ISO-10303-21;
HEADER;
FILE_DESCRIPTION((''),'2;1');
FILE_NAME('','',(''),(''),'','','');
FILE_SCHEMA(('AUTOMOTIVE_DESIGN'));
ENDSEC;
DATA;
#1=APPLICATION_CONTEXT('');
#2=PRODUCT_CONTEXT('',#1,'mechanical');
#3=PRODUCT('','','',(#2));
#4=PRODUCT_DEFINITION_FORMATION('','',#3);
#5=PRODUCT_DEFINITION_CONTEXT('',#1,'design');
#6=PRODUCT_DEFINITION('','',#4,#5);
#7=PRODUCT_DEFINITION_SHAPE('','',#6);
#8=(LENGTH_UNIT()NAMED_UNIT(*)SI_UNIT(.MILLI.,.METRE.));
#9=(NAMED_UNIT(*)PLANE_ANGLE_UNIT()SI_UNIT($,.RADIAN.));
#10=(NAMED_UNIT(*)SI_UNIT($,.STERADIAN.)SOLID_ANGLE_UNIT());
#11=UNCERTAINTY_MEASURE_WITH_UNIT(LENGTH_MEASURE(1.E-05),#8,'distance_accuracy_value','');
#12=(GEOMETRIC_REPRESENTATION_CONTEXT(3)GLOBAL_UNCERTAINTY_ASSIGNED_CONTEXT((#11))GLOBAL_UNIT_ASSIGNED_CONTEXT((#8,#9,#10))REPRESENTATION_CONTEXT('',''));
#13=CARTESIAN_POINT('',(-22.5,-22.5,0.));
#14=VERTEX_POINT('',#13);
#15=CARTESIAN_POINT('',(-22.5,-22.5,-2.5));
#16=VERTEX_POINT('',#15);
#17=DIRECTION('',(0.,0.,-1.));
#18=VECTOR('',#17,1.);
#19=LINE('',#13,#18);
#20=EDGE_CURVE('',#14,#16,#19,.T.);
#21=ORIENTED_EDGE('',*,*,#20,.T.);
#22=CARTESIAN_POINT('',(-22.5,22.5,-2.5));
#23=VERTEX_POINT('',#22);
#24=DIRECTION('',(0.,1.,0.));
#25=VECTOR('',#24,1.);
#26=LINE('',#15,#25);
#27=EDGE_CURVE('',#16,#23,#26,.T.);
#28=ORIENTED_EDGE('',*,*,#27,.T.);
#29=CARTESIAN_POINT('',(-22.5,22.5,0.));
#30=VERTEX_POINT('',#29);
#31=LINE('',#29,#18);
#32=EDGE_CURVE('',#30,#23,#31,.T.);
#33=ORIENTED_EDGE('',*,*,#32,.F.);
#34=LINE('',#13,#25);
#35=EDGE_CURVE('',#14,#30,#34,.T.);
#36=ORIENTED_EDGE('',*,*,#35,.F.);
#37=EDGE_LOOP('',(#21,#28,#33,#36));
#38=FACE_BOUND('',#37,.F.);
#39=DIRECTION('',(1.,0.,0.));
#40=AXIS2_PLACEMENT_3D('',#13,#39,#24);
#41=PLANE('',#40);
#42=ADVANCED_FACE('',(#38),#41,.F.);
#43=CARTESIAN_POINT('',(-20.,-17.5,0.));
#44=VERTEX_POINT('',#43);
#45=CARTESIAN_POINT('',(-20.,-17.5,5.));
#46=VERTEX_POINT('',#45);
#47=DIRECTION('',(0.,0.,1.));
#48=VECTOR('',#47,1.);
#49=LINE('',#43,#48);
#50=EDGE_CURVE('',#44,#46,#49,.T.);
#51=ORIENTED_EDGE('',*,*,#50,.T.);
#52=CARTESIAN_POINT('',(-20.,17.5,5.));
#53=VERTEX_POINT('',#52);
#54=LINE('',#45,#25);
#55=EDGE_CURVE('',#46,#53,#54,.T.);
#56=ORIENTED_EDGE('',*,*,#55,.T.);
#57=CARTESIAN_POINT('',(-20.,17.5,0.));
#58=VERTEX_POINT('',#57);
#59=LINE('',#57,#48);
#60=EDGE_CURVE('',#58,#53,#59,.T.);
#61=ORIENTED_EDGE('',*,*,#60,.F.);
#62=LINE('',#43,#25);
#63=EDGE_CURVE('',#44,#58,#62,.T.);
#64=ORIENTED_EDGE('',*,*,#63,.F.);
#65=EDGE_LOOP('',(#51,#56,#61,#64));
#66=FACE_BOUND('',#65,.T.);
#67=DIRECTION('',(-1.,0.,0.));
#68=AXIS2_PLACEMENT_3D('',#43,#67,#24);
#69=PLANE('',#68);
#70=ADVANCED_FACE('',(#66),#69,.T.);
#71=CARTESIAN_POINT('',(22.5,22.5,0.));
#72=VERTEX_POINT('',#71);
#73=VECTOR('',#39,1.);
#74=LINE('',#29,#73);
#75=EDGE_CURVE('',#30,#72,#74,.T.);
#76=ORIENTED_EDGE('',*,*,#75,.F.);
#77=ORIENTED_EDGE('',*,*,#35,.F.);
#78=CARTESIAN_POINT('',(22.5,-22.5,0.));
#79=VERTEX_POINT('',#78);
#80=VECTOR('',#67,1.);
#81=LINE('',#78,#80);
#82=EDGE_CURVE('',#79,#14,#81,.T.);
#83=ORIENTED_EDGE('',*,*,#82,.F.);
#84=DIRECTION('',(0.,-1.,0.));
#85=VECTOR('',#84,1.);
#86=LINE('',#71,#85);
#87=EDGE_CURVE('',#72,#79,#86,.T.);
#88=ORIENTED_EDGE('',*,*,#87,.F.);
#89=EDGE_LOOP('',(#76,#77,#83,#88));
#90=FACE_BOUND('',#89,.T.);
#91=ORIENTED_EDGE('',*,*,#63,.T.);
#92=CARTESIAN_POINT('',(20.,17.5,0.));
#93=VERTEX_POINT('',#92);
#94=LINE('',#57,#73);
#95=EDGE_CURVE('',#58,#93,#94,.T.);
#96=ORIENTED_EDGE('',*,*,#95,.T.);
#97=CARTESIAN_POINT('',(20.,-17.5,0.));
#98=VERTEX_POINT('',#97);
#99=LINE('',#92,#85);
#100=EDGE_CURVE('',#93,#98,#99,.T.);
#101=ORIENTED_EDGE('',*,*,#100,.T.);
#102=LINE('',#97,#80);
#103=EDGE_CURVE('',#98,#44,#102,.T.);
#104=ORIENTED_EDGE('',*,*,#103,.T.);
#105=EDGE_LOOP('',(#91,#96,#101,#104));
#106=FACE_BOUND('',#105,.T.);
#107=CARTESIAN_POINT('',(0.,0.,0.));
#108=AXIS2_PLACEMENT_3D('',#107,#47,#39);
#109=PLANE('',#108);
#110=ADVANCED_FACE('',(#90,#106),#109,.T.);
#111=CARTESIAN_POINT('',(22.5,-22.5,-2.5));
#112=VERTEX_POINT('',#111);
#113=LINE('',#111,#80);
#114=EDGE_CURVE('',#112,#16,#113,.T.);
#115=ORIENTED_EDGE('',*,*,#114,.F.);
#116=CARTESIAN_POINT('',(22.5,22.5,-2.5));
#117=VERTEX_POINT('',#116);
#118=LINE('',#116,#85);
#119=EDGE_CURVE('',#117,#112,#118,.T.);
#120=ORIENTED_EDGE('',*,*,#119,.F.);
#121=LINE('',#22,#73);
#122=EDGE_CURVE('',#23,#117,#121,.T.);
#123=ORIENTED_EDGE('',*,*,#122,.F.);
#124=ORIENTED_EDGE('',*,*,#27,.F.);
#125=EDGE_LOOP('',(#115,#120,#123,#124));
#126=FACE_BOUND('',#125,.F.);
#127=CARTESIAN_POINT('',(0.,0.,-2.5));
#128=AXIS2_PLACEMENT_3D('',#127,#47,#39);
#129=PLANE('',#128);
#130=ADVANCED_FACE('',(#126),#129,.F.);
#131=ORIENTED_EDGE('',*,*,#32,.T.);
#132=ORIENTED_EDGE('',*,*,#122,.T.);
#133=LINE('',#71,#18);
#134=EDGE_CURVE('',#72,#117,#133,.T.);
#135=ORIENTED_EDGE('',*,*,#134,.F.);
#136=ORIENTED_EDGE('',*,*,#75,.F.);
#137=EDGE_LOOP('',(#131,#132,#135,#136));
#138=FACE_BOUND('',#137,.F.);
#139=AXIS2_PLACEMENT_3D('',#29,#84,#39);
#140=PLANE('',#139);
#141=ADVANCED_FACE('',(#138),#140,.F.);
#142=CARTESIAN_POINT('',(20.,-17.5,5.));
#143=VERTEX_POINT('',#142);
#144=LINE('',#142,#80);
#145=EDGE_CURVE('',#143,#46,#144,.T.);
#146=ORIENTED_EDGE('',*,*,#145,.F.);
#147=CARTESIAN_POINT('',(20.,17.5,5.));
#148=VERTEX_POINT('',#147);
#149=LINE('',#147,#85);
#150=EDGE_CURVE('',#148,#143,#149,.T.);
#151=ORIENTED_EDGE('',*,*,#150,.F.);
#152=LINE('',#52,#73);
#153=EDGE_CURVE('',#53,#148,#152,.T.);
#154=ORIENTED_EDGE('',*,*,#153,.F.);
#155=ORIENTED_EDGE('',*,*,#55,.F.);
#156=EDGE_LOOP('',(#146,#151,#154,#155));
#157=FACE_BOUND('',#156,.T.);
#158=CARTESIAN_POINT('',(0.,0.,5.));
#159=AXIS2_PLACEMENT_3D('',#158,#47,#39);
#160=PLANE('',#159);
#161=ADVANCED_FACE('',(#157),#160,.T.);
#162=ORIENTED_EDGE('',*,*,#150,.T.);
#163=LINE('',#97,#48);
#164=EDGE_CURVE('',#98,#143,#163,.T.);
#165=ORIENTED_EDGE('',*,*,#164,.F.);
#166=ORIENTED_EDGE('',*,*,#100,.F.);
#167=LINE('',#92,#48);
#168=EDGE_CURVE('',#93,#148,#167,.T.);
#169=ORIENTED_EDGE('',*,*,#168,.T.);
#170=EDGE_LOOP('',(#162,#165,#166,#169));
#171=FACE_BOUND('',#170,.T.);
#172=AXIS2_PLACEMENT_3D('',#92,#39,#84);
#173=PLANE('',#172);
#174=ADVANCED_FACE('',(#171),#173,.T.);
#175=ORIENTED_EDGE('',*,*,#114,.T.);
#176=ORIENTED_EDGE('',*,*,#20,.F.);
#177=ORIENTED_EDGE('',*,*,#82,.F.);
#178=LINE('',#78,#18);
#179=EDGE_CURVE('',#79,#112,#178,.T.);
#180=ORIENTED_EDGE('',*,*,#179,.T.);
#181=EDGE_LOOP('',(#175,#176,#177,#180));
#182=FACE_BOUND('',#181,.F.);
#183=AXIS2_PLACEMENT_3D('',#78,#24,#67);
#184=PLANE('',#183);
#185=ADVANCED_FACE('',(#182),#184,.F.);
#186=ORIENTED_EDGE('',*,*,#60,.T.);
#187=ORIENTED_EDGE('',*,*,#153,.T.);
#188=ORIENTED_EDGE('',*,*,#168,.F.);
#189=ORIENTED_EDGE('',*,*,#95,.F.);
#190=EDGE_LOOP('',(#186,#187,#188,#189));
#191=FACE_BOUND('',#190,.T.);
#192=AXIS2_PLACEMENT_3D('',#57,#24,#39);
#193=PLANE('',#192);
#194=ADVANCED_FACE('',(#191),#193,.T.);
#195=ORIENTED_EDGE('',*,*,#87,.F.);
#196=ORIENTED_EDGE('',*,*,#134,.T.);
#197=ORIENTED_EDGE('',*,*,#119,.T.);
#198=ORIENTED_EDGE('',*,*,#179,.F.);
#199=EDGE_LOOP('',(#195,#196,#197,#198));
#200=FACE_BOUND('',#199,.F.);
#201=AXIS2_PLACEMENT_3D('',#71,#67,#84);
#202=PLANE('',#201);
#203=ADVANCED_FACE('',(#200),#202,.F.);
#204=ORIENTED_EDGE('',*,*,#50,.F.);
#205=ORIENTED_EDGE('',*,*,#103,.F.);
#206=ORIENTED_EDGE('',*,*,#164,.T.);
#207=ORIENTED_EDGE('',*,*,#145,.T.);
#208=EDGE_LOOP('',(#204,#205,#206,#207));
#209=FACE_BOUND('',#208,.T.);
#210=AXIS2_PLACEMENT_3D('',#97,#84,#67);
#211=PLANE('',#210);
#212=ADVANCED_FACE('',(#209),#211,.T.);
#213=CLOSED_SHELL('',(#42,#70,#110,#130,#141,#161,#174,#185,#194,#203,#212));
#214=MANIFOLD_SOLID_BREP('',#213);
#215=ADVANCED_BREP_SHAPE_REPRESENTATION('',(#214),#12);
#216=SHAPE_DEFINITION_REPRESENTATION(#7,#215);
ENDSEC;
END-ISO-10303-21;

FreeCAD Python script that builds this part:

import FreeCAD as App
import Part
import Sketcher

V = App.Vector
Q = App.Units.Quantity


def add_polygon(sketch, points):
    """Adds a closed chain of lines whose ends are joined by coincident constraints."""
    first, n = sketch.GeometryCount, len(points)
    for a, b in zip(points, points[1:] + points[:1]):
        sketch.addGeometry(Part.LineSegment(App.Vector(*a, 0), App.Vector(*b, 0)), False)
    for i in range(n):
        sketch.addConstraint(Sketcher.Constraint("Coincident", first + i, 2, first + (i + 1) % n, 1))

doc = App.newDocument("Part")
body = doc.addObject("PartDesign::Body", "Body")

sketch1 = body.newObject("Sketcher::SketchObject", "Sketch")
sketch1.AttachmentSupport = (doc.getObject("XY_Plane"), [""])
sketch1.MapMode = "FlatFace"
add_polygon(sketch1, [(22.5, 22.5), (-22.5, 22.5), (-22.5, -22.5), (22.5, -22.5)])
sketch1.addConstraint(Sketcher.Constraint("Horizontal", 0))
sketch1.addConstraint(Sketcher.Constraint("Vertical", 1))
sketch1.addConstraint(Sketcher.Constraint("Horizontal", 2))
sketch1.addConstraint(Sketcher.Constraint("Vertical", 3))
sketch1.addConstraint(Sketcher.Constraint("Symmetric", 0, 2, 2, 2, -1, 1))
sketch1.addConstraint(Sketcher.Constraint("Equal", 2, 1))
sketch1.addConstraint(Sketcher.Constraint("DistanceX", 0, 2, 0, 1, Q("45 mm")))
pad1 = body.newObject("PartDesign::Pad", "Pad")
pad1.Profile = sketch1
pad1.Length = 2.5
pad1.Reversed = True

sketch2 = body.newObject("Sketcher::SketchObject", "Sketch001")
sketch2.AttachmentSupport = (doc.getObject("XY_Plane"), [""])
sketch2.MapMode = "FlatFace"
add_polygon(sketch2, [(20, 17.5), (-20, 17.5), (-20, -17.5), (20, -17.5)])
sketch2.addConstraint(Sketcher.Constraint("Horizontal", 0))
sketch2.addConstraint(Sketcher.Constraint("Vertical", 1))
sketch2.addConstraint(Sketcher.Constraint("Horizontal", 2))
sketch2.addConstraint(Sketcher.Constraint("Vertical", 3))
sketch2.addConstraint(Sketcher.Constraint("Symmetric", 0, 2, 2, 2, -1, 1))
sketch2.addConstraint(Sketcher.Constraint("DistanceX", 0, 2, 0, 1, Q("40 mm")))
sketch2.addConstraint(Sketcher.Constraint("DistanceY", 1, 2, 1, 1, Q("35 mm")))
pad2 = body.newObject("PartDesign::Pad", "Pad001")
pad2.Profile = sketch2
pad2.Length = 5

doc.recompute()
